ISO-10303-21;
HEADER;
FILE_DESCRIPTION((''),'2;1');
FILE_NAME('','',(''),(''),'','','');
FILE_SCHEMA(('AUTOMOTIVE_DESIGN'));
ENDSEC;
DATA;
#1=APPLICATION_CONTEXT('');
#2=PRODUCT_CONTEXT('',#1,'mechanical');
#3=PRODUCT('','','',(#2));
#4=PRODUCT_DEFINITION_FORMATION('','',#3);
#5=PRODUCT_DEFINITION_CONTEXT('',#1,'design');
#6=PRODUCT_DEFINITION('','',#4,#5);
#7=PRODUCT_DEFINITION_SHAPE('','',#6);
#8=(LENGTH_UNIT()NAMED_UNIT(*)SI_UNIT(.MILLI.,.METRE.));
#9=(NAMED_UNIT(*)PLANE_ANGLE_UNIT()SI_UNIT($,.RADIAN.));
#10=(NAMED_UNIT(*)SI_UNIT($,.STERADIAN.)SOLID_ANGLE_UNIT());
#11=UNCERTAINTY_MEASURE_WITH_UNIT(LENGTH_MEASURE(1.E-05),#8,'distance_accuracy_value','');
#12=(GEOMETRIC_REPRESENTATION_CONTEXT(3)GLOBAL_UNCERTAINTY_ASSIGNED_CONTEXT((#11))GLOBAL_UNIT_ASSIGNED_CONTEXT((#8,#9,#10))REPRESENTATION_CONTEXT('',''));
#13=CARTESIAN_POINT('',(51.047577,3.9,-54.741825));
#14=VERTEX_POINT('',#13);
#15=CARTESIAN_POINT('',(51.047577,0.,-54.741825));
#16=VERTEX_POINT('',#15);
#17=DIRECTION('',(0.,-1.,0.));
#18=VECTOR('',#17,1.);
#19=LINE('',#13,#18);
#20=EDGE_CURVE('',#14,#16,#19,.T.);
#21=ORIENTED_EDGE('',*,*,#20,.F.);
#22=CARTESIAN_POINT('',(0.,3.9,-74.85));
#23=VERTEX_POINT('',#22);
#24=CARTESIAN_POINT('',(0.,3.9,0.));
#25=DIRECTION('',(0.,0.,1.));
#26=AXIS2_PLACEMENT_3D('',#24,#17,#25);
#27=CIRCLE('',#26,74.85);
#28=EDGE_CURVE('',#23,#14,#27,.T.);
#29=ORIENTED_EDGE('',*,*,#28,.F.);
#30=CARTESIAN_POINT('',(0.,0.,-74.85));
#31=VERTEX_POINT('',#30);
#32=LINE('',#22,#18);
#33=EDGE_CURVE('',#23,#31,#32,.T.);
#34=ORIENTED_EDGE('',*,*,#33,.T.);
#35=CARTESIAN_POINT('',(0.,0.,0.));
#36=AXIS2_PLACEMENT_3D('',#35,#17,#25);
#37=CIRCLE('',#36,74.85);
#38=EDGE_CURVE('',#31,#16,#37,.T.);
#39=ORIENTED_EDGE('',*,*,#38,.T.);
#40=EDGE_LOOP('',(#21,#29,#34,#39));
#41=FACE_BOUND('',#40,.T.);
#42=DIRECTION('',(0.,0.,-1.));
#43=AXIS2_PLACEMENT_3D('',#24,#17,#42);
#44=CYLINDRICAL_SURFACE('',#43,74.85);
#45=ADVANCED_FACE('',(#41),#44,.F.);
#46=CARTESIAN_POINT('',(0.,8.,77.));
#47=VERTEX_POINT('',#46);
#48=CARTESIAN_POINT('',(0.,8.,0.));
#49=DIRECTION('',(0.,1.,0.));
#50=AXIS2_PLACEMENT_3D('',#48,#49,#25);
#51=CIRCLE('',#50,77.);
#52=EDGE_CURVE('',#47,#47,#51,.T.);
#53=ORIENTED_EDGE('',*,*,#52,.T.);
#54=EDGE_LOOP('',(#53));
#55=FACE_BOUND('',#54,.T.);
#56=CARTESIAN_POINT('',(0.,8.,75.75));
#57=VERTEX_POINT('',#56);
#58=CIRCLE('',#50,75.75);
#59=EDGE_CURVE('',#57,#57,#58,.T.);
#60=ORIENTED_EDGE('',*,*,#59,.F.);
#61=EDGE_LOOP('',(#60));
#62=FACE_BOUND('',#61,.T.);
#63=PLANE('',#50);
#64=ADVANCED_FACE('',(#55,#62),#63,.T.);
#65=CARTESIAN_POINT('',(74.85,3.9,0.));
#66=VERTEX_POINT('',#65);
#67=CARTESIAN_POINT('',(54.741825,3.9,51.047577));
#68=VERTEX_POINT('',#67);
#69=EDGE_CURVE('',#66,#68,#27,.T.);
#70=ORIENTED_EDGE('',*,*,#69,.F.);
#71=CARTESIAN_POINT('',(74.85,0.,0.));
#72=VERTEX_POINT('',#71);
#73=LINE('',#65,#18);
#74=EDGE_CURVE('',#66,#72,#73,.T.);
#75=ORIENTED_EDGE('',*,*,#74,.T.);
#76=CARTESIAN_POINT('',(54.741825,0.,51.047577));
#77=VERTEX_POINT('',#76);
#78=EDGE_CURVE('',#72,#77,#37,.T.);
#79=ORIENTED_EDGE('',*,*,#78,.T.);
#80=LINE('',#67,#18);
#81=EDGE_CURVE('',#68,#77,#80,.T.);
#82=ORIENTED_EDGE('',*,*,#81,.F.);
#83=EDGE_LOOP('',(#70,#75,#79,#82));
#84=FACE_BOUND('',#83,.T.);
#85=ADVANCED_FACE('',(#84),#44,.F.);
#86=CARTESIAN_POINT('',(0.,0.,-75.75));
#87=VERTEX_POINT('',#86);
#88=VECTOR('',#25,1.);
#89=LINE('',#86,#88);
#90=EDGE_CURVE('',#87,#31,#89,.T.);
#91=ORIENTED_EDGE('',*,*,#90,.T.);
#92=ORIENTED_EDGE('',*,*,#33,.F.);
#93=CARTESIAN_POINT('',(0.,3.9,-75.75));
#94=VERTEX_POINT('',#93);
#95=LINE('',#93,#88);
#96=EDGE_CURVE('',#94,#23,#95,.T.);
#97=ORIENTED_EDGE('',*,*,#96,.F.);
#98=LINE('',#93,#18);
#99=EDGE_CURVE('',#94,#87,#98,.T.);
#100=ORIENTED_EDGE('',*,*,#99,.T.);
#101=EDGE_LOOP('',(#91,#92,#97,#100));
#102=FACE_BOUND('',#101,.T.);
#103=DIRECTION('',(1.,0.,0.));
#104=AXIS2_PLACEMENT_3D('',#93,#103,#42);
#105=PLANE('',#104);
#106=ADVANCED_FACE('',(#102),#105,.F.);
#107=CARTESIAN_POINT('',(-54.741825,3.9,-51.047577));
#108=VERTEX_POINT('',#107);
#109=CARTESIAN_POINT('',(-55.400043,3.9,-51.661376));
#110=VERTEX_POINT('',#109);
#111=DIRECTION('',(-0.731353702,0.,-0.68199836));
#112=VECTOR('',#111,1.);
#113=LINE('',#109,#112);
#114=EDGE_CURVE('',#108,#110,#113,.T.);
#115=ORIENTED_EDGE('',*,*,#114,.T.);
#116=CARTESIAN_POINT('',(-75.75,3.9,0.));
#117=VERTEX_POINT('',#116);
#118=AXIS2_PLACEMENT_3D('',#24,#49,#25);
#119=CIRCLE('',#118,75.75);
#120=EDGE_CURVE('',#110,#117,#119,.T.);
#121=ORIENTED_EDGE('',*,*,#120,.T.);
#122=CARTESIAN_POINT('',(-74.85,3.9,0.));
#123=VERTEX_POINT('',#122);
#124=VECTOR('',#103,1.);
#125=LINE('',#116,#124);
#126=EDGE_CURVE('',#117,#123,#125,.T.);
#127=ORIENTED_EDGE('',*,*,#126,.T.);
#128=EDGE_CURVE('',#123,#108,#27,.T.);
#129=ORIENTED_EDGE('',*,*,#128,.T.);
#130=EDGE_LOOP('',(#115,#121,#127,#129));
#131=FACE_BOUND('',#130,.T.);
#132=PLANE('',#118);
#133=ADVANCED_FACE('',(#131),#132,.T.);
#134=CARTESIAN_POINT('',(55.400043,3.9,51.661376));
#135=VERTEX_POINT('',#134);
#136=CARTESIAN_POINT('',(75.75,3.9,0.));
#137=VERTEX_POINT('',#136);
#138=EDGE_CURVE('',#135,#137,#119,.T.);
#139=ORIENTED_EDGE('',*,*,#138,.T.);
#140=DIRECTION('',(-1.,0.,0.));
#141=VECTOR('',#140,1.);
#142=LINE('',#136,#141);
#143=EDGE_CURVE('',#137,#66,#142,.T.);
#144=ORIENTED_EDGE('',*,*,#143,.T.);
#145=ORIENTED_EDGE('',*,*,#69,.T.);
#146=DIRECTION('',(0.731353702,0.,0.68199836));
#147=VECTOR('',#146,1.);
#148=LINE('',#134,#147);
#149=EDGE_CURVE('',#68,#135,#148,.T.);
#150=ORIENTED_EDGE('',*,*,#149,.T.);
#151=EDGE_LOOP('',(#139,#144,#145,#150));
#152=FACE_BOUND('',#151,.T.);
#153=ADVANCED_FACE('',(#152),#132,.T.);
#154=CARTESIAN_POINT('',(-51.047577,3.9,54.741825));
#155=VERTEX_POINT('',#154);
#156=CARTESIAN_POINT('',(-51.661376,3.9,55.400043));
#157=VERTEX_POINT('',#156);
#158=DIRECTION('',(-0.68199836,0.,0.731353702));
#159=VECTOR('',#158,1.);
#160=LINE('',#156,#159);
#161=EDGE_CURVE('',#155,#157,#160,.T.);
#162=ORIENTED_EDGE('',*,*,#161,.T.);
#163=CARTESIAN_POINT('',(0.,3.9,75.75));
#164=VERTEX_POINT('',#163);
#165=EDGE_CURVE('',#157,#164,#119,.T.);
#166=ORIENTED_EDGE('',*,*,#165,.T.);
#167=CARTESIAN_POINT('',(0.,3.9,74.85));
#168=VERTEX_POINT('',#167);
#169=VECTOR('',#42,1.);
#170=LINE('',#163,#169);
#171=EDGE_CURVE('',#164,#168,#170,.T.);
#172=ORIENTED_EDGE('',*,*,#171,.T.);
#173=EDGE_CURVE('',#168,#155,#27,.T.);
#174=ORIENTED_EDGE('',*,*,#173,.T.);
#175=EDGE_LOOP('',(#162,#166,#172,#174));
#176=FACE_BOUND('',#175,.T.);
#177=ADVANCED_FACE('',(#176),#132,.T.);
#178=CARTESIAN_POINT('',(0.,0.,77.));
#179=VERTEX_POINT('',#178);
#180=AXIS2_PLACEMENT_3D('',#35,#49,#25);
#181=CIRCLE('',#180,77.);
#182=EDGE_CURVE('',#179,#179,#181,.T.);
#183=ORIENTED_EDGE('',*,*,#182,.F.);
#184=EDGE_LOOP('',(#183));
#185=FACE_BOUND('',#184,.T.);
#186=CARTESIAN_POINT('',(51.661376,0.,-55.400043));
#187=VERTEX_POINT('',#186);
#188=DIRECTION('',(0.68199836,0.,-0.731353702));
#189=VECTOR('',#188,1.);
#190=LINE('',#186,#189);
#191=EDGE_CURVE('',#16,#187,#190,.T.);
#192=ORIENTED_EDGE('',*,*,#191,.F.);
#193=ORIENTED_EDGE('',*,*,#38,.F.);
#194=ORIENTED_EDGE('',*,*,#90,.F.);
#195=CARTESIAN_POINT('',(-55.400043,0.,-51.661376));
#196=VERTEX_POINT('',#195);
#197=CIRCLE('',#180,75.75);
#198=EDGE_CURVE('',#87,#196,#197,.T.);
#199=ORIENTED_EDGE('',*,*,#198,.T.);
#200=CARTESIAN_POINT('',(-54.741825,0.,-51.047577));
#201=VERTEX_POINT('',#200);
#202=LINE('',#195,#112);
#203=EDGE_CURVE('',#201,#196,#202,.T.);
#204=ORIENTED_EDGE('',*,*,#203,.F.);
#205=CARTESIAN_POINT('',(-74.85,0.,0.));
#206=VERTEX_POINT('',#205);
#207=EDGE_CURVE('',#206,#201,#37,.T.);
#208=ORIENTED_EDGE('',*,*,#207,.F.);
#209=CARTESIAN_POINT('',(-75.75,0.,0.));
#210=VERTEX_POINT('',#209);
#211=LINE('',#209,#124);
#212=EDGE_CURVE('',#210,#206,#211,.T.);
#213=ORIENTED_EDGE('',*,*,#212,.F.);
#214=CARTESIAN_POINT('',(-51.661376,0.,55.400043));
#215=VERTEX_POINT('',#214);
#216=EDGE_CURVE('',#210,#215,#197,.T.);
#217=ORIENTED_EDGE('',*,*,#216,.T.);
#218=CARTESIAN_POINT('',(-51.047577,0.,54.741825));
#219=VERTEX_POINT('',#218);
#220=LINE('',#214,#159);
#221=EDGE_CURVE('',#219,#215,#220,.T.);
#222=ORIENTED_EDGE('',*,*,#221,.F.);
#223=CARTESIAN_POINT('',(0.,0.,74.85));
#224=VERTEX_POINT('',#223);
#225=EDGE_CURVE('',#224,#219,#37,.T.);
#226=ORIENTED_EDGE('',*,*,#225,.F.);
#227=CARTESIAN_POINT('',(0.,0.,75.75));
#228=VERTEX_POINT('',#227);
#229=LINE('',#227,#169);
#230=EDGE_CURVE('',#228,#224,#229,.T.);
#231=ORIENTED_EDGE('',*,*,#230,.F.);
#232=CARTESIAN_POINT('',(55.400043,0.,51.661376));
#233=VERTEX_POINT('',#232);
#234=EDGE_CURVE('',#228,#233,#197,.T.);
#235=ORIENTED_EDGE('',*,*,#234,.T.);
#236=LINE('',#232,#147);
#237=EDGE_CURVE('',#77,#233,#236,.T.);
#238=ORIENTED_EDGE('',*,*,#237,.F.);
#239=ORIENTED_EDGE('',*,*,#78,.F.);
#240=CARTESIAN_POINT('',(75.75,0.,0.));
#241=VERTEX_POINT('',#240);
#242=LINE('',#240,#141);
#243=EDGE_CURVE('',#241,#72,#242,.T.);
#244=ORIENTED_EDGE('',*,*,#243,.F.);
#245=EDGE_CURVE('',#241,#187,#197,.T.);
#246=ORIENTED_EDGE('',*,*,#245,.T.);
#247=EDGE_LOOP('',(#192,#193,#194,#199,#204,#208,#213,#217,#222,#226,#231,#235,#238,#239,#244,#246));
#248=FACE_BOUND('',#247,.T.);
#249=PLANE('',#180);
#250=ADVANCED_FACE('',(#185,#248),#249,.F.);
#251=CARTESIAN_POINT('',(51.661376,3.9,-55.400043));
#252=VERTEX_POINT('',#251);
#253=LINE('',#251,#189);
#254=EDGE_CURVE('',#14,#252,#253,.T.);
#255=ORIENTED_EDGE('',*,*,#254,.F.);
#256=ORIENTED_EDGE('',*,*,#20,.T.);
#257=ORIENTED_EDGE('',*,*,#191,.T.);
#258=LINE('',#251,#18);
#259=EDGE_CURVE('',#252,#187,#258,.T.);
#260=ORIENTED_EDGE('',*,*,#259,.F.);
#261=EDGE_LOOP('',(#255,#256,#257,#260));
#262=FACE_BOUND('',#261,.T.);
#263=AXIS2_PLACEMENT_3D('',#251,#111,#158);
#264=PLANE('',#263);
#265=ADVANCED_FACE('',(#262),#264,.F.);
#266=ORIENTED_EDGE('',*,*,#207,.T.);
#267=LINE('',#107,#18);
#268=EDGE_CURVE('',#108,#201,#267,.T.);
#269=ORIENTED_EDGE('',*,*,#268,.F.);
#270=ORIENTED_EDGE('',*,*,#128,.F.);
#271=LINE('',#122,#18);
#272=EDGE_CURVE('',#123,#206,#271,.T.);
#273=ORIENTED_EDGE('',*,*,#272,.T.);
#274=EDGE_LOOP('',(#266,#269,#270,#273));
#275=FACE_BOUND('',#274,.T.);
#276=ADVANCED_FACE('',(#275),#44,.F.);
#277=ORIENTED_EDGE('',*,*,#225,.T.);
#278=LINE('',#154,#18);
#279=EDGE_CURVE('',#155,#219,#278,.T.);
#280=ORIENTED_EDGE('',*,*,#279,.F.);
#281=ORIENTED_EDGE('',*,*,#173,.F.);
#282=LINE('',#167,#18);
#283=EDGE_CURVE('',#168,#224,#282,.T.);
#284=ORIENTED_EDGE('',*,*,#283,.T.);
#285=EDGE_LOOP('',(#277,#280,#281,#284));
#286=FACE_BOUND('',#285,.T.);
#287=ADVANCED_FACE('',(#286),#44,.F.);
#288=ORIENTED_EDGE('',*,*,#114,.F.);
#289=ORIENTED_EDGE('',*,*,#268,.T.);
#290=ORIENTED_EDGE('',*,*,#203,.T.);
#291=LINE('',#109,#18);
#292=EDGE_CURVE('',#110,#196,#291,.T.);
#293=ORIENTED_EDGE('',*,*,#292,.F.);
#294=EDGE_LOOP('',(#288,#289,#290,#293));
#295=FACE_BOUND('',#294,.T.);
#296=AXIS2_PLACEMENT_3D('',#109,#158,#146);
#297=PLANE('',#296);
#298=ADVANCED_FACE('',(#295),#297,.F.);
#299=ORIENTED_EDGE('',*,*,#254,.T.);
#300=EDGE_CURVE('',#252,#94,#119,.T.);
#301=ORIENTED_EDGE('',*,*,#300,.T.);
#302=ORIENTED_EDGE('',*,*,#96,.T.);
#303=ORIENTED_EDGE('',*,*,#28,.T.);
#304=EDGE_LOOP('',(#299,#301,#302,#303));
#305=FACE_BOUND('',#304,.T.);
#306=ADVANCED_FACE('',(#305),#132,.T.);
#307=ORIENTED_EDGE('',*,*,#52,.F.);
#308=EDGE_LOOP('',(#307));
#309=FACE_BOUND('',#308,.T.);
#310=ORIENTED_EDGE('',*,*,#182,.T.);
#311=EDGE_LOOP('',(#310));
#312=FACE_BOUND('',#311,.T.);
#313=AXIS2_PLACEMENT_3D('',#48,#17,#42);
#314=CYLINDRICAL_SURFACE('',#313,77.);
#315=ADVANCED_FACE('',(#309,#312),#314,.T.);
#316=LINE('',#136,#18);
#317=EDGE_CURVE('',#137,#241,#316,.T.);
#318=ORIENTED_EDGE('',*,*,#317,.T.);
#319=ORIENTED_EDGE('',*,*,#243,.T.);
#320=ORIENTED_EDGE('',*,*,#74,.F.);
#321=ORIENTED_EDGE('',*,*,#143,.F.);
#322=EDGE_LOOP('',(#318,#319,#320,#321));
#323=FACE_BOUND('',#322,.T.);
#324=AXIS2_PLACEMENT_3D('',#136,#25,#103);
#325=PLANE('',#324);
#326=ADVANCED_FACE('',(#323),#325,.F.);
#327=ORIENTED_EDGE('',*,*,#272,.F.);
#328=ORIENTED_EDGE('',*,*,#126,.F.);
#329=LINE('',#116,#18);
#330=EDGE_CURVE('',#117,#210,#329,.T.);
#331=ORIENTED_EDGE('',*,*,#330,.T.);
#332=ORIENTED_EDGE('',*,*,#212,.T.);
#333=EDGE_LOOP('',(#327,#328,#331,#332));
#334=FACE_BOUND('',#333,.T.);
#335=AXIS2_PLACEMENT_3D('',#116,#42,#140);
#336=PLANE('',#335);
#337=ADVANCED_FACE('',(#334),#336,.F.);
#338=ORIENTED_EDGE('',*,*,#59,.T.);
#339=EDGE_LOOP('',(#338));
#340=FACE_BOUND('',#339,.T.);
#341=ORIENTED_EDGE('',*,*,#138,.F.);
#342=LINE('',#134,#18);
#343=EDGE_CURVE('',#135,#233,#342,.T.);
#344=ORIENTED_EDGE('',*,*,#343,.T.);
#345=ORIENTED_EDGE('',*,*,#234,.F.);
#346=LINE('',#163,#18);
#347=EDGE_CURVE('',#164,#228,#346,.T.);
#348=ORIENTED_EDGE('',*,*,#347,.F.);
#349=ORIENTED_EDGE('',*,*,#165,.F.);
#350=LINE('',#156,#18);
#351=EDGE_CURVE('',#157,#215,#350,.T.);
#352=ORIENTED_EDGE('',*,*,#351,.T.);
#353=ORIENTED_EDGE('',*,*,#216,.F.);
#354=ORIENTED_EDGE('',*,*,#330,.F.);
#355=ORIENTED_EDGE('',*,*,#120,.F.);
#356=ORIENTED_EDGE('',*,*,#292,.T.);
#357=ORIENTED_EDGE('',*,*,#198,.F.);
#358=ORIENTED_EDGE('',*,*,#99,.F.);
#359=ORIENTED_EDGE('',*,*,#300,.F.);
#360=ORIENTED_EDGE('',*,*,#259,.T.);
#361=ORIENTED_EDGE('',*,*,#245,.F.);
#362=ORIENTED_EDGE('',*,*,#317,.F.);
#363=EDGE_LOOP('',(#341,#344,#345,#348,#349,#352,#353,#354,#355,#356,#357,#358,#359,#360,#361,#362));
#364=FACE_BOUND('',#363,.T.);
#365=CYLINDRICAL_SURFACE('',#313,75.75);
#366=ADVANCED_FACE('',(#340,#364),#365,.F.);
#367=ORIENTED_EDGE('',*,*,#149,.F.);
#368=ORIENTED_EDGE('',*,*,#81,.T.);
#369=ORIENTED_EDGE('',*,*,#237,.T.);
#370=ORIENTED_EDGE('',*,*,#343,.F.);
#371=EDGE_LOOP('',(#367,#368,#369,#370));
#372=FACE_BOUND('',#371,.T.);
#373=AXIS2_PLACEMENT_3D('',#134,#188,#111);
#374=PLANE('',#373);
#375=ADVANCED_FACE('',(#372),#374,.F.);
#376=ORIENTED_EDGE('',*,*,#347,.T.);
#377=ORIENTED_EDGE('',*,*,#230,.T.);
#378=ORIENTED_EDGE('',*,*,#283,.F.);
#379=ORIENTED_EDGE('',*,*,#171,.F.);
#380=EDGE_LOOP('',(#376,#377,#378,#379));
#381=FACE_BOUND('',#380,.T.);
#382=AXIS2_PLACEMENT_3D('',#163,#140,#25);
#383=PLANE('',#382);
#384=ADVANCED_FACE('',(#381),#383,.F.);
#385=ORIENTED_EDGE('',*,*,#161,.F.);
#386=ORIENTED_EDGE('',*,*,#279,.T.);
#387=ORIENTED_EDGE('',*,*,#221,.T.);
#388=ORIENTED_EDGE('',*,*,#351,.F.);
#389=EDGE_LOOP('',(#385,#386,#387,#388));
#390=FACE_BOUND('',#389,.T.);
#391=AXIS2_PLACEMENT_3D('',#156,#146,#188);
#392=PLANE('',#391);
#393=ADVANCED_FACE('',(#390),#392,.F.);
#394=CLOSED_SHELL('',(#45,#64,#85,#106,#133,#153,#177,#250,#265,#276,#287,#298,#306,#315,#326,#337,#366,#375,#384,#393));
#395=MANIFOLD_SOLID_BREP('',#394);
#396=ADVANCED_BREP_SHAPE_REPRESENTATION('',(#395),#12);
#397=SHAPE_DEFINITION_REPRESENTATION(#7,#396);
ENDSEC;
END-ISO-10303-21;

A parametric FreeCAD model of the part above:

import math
import FreeCAD as App
import Part
import Sketcher
from FreeCAD import Vector
Q = App.Units.Quantity

doc = App.newDocument("Part")
body = doc.addObject("PartDesign::Body", "Body")

sketch1 = body.newObject("Sketcher::SketchObject", "Sketch")
sketch1.AttachmentSupport = (doc.getObject("XZ_Plane"), [""])
sketch1.MapMode = "FlatFace"
sketch1.addGeometry([
    Part.Circle(Vector(0, 0, 0), Vector(0, 0, 1), 77),
    Part.Circle(Vector(0, 0, 0), Vector(0, 0, 1), 76),
], False)
sketch1.addConstraint([
    Sketcher.Constraint("Coincident", 0, 3, -1, 1),
    Sketcher.Constraint("Coincident", 1, 3, -1, 1),
    Sketcher.Constraint("Diameter", 0, 154.0),
    Sketcher.Constraint("Diameter", 1, 151.5),
])
pad1 = body.newObject("PartDesign::Pad", "Pad")
pad1.Profile = sketch1
pad1.Length = 8
pad1.Reversed = True

sketch2 = body.newObject("Sketcher::SketchObject", "Sketch001")
sketch2.AttachmentSupport = (doc.getObject("XZ_Plane"), [""])
sketch2.MapMode = "FlatFace"
sketch2.addGeometry([
    Part.LineSegment(Vector(0, -75.8, 0), Vector(0, -74.8, 0)),
    Part.ArcOfCircle(Part.Circle(Vector(0, 0, 0), Vector(0, 0, 1), 74.9), math.radians(-90), math.radians(-47)),
    Part.LineSegment(Vector(51, -54.7, 0), Vector(51.7, -55.4, 0)),
    Part.ArcOfCircle(Part.Circle(Vector(0, 0, 0), Vector(0, 0, 1), 75.8), math.radians(-90), math.radians(-47)),
    Part.LineSegment(Vector(54.7, 51, 0), Vector(55.4, 51.7, 0)),
    Part.ArcOfCircle(Part.Circle(Vector(0, 0, 0), Vector(0, 0, 1), 75.8), math.radians(0), math.radians(43)),
    Part.LineSegment(Vector(75.8, 0, 0), Vector(74.8, 0, 0)),
    Part.ArcOfCircle(Part.Circle(Vector(0, 0, 0), Vector(0, 0, 1), 74.9), math.radians(0), math.radians(43)),
    Part.LineSegment(Vector(-51, 54.7, 0), Vector(-51.7, 55.4, 0)),
    Part.ArcOfCircle(Part.Circle(Vector(0, 0, 0), Vector(0, 0, 1), 75.8), math.radians(90), math.radians(133)),
    Part.LineSegment(Vector(0, 75.8, 0), Vector(0, 74.8, 0)),
    Part.ArcOfCircle(Part.Circle(Vector(0, 0, 0), Vector(0, 0, 1), 74.9), math.radians(90), math.radians(133)),
    Part.LineSegment(Vector(-54.7, -51, 0), Vector(-55.4, -51.7, 0)),
    Part.ArcOfCircle(Part.Circle(Vector(0, 0, 0), Vector(0, 0, 1), 75.8), math.radians(180), math.radians(223)),
    Part.LineSegment(Vector(-75.8, 0, 0), Vector(-74.8, 0, 0)),
    Part.ArcOfCircle(Part.Circle(Vector(0, 0, 0), Vector(0, 0, 1), 74.9), math.radians(-180), math.radians(-137)),
], False)
sketch2.addConstraint([
    Sketcher.Constraint("Coincident", 0, 2, 1, 1),
    Sketcher.Constraint("Coincident", 1, 2, 2, 1),
    Sketcher.Constraint("Coincident", 2, 2, 3, 2),
    Sketcher.Constraint("Coincident", 3, 1, 0, 1),
    Sketcher.Constraint("Coincident", 4, 2, 5, 2),
    Sketcher.Constraint("Coincident", 5, 1, 6, 1),
    Sketcher.Constraint("Coincident", 6, 2, 7, 1),
    Sketcher.Constraint("Coincident", 7, 2, 4, 1),
    Sketcher.Constraint("Coincident", 8, 2, 9, 2),
    Sketcher.Constraint("Coincident", 9, 1, 10, 1),
    Sketcher.Constraint("Coincident", 10, 2, 11, 1),
    Sketcher.Constraint("Coincident", 11, 2, 8, 1),
    Sketcher.Constraint("Coincident", 12, 2, 13, 2),
    Sketcher.Constraint("Coincident", 13, 1, 14, 1),
    Sketcher.Constraint("Coincident", 14, 2, 15, 1),
    Sketcher.Constraint("Coincident", 15, 2, 12, 1),
    Sketcher.Constraint("Vertical", 0),
    Sketcher.Constraint("Horizontal", 6),
    Sketcher.Constraint("Vertical", 10),
    Sketcher.Constraint("Horizontal", 14),
    Sketcher.Constraint("Coincident", 1, 3, -1, 1),
    Sketcher.Constraint("Coincident", 3, 3, -1, 1),
    Sketcher.Constraint("Coincident", 5, 3, -1, 1),
    Sketcher.Constraint("Coincident", 7, 3, -1, 1),
    Sketcher.Constraint("Coincident", 9, 3, -1, 1),
    Sketcher.Constraint("Coincident", 11, 3, -1, 1),
    Sketcher.Constraint("Coincident", 13, 3, -1, 1),
    Sketcher.Constraint("Coincident", 15, 3, -1, 1),
    Sketcher.Constraint("Equal", 3, 5),
    Sketcher.Constraint("Equal", 1, 7),
    Sketcher.Constraint("Equal", 5, 9),
    Sketcher.Constraint("Equal", 7, 11),
    Sketcher.Constraint("Equal", 9, 13),
    Sketcher.Constraint("Equal", 11, 15),
    Sketcher.Constraint("PointOnObject", 0, 2, -2),
    Sketcher.Constraint("PointOnObject", 5, 1, -1),
    Sketcher.Constraint("PointOnObject", 9, 1, -2),
    Sketcher.Constraint("PointOnObject", 13, 1, -1),
    Sketcher.Constraint("Perpendicular", 2, 4),
    Sketcher.Constraint("Perpendicular", 4, 8),
    Sketcher.Constraint("Perpendicular", 8, 12),
    Sketcher.Constraint("Angle", 2, Q("-47 deg")),
    Sketcher.Constraint("Radius", 1, 74.85),
    Sketcher.Constraint("Radius", 3, 75.75),
    Sketcher.Constraint("DistanceX", -1, 1, 1, 2, 51.047577),
    Sketcher.Constraint("DistanceX", -1, 1, 4, 2, 55.400043),
    Sketcher.Constraint("DistanceX", 8, 2, -1, 1, 51.661376),
    Sketcher.Constraint("DistanceX", 12, 2, -1, 1, 55.400043),
])
pad2 = body.newObject("PartDesign::Pad", "Pad001")
pad2.Profile = sketch2
pad2.Length = 3.9
pad2.Reversed = True

doc.recompute()
